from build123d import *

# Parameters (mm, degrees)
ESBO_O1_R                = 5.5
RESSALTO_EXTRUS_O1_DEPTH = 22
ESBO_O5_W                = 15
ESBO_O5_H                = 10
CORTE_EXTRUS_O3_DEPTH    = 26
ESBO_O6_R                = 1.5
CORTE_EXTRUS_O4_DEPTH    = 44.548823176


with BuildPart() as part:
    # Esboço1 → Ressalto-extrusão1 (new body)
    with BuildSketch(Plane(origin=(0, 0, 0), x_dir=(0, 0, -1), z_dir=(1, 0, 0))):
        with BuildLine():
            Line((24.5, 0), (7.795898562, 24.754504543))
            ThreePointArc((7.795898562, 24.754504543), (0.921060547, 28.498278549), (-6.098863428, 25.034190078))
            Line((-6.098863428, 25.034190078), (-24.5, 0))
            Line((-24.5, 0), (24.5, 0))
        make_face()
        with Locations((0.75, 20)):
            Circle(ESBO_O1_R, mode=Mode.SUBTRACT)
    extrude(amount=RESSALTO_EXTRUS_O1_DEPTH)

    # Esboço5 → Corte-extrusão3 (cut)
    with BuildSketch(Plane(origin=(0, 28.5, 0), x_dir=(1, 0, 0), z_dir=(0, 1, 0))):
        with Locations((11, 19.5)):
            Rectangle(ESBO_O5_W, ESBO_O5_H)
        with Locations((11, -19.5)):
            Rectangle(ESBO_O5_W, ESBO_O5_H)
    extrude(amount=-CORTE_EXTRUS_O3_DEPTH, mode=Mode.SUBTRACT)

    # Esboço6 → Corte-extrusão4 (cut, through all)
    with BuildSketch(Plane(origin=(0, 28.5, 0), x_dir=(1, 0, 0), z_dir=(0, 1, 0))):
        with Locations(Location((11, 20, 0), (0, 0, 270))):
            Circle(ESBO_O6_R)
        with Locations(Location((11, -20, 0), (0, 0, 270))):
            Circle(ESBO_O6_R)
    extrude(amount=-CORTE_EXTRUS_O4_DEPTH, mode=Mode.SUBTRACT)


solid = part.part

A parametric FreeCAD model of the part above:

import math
import FreeCAD as App
import Part
import Sketcher
Q = App.Units.Quantity

doc = App.newDocument("Part")
body = doc.addObject("PartDesign::Body", "Body")

sketch1 = body.newObject("Sketcher::SketchObject", "Sketch")
sketch1.AttachmentSupport = (doc.getObject("YZ_Plane"), [""])
sketch1.MapMode = "FlatFace"
sketch1.addGeometry([
    Part.LineSegment(App.Vector(0, -24.5, 0), App.Vector(24.754505, -7.795899, 0)),
    Part.ArcOfCircle(Part.Circle(App.Vector(20, -0.75, 0), App.Vector(0, 0, 1), 8.5), math.radians(-55.988902), math.radians(53.682617)),
    Part.LineSegment(App.Vector(25.03419, 6.098863, 0), App.Vector(0, 24.5, 0)),
    Part.LineSegment(App.Vector(0, 24.5, 0), App.Vector(0, -24.5, 0)),
    Part.Circle(App.Vector(20, -0.75, 0), App.Vector(0, 0, 1), 5.5),
], False)
sketch1.addConstraint([
    Sketcher.Constraint("Tangent", 0, 2, 1, 1),
    Sketcher.Constraint("Tangent", 1, 2, 2, 1),
    Sketcher.Constraint("Coincident", 2, 2, 3, 1),
    Sketcher.Constraint("Coincident", 3, 2, 0, 1),
    Sketcher.Constraint("Vertical", 3),
    Sketcher.Constraint("Coincident", 4, 3, 1, 3),
    Sketcher.Constraint("Symmetric", 2, 2, 3, 2, -1, 1),
    Sketcher.Constraint("Diameter", 4, Q("11 mm")),
    Sketcher.Constraint("Radius", 1, Q("8.5 mm")),
    Sketcher.Constraint("DistanceY", 3, 2, 3, 1, Q("49 mm")),
    Sketcher.Constraint("DistanceX", -1, 1, 1, 3, Q("20 mm")),
    Sketcher.Constraint("DistanceY", 1, 3, -1, 1, Q("0.75 mm")),
])
pad1 = body.newObject("PartDesign::Pad", "Pad")
pad1.Profile = sketch1
pad1.Length = 22

sketch2 = body.newObject("Sketcher::SketchObject", "Sketch001")
sketch2.AttachmentSupport = (doc.getObject("XZ_Plane"), [""])
sketch2.MapMode = "FlatFace"
sketch2.AttachmentOffset = App.Placement(App.Vector(0, 0, -28.5), App.Rotation())
sketch2.addGeometry([
    Part.LineSegment(App.Vector(3.5, -24.5, 0), App.Vector(3.5, -14.5, 0)),
    Part.LineSegment(App.Vector(3.5, -14.5, 0), App.Vector(18.5, -14.5, 0)),
    Part.LineSegment(App.Vector(18.5, -14.5, 0), App.Vector(18.5, -24.5, 0)),
    Part.LineSegment(App.Vector(18.5, -24.5, 0), App.Vector(3.5, -24.5, 0)),
    Part.LineSegment(App.Vector(3.5, 14.5, 0), App.Vector(3.5, 24.5, 0)),
    Part.LineSegment(App.Vector(3.5, 24.5, 0), App.Vector(18.5, 24.5, 0)),
    Part.LineSegment(App.Vector(18.5, 24.5, 0), App.Vector(18.5, 14.5, 0)),
    Part.LineSegment(App.Vector(18.5, 14.5, 0), App.Vector(3.5, 14.5, 0)),
], False)
sketch2.addConstraint([
    Sketcher.Constraint("Coincident", 0, 2, 1, 1),
    Sketcher.Constraint("Coincident", 1, 2, 2, 1),
    Sketcher.Constraint("Coincident", 2, 2, 3, 1),
    Sketcher.Constraint("Coincident", 3, 2, 0, 1),
    Sketcher.Constraint("Coincident", 4, 2, 5, 1),
    Sketcher.Constraint("Coincident", 5, 2, 6, 1),
    Sketcher.Constraint("Coincident", 6, 2, 7, 1),
    Sketcher.Constraint("Coincident", 7, 2, 4, 1),
    Sketcher.Constraint("Vertical", 0),
    Sketcher.Constraint("Horizontal", 1),
    Sketcher.Constraint("Vertical", 2),
    Sketcher.Constraint("Horizontal", 3),
    Sketcher.Constraint("Vertical", 4),
    Sketcher.Constraint("Horizontal", 5),
    Sketcher.Constraint("Vertical", 6),
    Sketcher.Constraint("Horizontal", 7),
    Sketcher.Constraint("Symmetric", 3, 2, 4, 2, -1),
    Sketcher.Constraint("Symmetric", 1, 2, 6, 2, -1),
    Sketcher.Constraint("DistanceX", 1, 1, 1, 2, Q("15 mm")),
    Sketcher.Constraint("DistanceY", 0, 1, 0, 2, Q("10 mm")),
    Sketcher.Constraint("DistanceY", 0, 2, 4, 2, Q("39 mm")),
    Sketcher.Constraint("DistanceX", -1, 1, 0, 2, Q("3.5 mm")),
])
pocket1 = body.newObject("PartDesign::Pocket", "Pocket")
pocket1.Profile = sketch2
pocket1.Length = 26
pocket1.Reversed = True

sketch3 = body.newObject("Sketcher::SketchObject", "Sketch002")
sketch3.AttachmentSupport = (doc.getObject("XZ_Plane"), [""])
sketch3.MapMode = "FlatFace"
sketch3.AttachmentOffset = App.Placement(App.Vector(0, 0, -28.5), App.Rotation())
sketch3.addGeometry([
    Part.Circle(App.Vector(11, -20, 0), App.Vector(0, 0, 1), 1.5),
    Part.Circle(App.Vector(11, 20, 0), App.Vector(0, 0, 1), 1.5),
], False)
sketch3.addConstraint([
    Sketcher.Constraint("Equal", 0, 1),
    Sketcher.Constraint("Symmetric", 0, 3, 1, 3, -1),
    Sketcher.Constraint("Diameter", 0, Q("3 mm")),
    Sketcher.Constraint("DistanceX", -1, 1, 0, 3, Q("11 mm")),
    Sketcher.Constraint("DistanceY", 0, 3, -1, 1, Q("20 mm")),
])
pocket2 = body.newObject("PartDesign::Pocket", "Pocket001")
pocket2.Profile = sketch3
pocket2.Type = "ThroughAll"
pocket2.Reversed = True

doc.recompute()
